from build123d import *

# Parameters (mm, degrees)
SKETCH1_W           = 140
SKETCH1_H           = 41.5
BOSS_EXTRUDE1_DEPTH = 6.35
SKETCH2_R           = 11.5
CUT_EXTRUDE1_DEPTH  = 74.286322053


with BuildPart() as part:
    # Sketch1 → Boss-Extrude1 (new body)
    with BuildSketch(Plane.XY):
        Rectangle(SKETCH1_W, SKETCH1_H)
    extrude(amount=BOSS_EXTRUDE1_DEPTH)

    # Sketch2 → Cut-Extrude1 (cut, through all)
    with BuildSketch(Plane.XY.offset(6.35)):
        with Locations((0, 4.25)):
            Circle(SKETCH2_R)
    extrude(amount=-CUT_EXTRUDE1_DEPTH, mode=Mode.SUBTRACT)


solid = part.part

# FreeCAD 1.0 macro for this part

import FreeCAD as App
import Part
import Sketcher
from FreeCAD import Vector
Q = App.Units.Quantity

doc = App.newDocument("Part")
body = doc.addObject("PartDesign::Body", "Body")

# Sketch on XY plane
sketch1 = doc.addObject("Sketcher::SketchObject", "Sketch")
body.addObject(sketch1)
sketch1.AttachmentSupport = (doc.XY_Plane, [""])
sketch1.MapMode = "FlatFace"
sketch1.addGeometry([
    Part.LineSegment(Vector(-70, 20.75, 0), Vector(-70, -20.75, 0)),
    Part.LineSegment(Vector(-70, -20.75, 0), Vector(70, -20.75, 0)),
    Part.LineSegment(Vector(70, -20.75, 0), Vector(70, 20.75, 0)),
    Part.LineSegment(Vector(70, 20.75, 0), Vector(-70, 20.75, 0)),
], False)
sketch1.addConstraint([
    Sketcher.Constraint("Coincident", 0, 2, 1, 1),
    Sketcher.Constraint("Coincident", 1, 2, 2, 1),
    Sketcher.Constraint("Coincident", 2, 2, 3, 1),
    Sketcher.Constraint("Coincident", 3, 2, 0, 1),
    Sketcher.Constraint("Vertical", 0),
    Sketcher.Constraint("Horizontal", 1),
    Sketcher.Constraint("Vertical", 2),
    Sketcher.Constraint("Horizontal", 3),
    Sketcher.Constraint("Symmetric", 0, 2, 2, 2, -1, 1),
    Sketcher.Constraint("DistanceX", 1, 1, 1, 2, Q("140 mm")),
    Sketcher.Constraint("DistanceY", 0, 2, 0, 1, Q("41.5 mm")),
])
pad1 = doc.addObject("PartDesign::Pad", "Pad")
body.addObject(pad1)
pad1.Profile = sketch1
pad1.Length = 6.35

# Sketch on XY plane
sketch2 = doc.addObject("Sketcher::SketchObject", "Sketch001")
body.addObject(sketch2)
sketch2.AttachmentSupport = (doc.XY_Plane, [""])
sketch2.MapMode = "FlatFace"
sketch2.AttachmentOffset = App.Placement(Vector(0, 0, 6.35), App.Rotation())
sketch2.addGeometry(Part.Circle(Vector(0, 4.25, 0), Vector(0, 0, 1), 11.5), False)
sketch2.addConstraint([
    Sketcher.Constraint("PointOnObject", 0, 3, -2),
    Sketcher.Constraint("Diameter", 0, Q("23 mm")),
    Sketcher.Constraint("DistanceY", -1, 1, 0, 3, Q("4.25 mm")),
])
pocket1 = doc.addObject("PartDesign::Pocket", "Pocket")
body.addObject(pocket1)
pocket1.Profile = sketch2
pocket1.Type = "ThroughAll"

doc.recompute()
